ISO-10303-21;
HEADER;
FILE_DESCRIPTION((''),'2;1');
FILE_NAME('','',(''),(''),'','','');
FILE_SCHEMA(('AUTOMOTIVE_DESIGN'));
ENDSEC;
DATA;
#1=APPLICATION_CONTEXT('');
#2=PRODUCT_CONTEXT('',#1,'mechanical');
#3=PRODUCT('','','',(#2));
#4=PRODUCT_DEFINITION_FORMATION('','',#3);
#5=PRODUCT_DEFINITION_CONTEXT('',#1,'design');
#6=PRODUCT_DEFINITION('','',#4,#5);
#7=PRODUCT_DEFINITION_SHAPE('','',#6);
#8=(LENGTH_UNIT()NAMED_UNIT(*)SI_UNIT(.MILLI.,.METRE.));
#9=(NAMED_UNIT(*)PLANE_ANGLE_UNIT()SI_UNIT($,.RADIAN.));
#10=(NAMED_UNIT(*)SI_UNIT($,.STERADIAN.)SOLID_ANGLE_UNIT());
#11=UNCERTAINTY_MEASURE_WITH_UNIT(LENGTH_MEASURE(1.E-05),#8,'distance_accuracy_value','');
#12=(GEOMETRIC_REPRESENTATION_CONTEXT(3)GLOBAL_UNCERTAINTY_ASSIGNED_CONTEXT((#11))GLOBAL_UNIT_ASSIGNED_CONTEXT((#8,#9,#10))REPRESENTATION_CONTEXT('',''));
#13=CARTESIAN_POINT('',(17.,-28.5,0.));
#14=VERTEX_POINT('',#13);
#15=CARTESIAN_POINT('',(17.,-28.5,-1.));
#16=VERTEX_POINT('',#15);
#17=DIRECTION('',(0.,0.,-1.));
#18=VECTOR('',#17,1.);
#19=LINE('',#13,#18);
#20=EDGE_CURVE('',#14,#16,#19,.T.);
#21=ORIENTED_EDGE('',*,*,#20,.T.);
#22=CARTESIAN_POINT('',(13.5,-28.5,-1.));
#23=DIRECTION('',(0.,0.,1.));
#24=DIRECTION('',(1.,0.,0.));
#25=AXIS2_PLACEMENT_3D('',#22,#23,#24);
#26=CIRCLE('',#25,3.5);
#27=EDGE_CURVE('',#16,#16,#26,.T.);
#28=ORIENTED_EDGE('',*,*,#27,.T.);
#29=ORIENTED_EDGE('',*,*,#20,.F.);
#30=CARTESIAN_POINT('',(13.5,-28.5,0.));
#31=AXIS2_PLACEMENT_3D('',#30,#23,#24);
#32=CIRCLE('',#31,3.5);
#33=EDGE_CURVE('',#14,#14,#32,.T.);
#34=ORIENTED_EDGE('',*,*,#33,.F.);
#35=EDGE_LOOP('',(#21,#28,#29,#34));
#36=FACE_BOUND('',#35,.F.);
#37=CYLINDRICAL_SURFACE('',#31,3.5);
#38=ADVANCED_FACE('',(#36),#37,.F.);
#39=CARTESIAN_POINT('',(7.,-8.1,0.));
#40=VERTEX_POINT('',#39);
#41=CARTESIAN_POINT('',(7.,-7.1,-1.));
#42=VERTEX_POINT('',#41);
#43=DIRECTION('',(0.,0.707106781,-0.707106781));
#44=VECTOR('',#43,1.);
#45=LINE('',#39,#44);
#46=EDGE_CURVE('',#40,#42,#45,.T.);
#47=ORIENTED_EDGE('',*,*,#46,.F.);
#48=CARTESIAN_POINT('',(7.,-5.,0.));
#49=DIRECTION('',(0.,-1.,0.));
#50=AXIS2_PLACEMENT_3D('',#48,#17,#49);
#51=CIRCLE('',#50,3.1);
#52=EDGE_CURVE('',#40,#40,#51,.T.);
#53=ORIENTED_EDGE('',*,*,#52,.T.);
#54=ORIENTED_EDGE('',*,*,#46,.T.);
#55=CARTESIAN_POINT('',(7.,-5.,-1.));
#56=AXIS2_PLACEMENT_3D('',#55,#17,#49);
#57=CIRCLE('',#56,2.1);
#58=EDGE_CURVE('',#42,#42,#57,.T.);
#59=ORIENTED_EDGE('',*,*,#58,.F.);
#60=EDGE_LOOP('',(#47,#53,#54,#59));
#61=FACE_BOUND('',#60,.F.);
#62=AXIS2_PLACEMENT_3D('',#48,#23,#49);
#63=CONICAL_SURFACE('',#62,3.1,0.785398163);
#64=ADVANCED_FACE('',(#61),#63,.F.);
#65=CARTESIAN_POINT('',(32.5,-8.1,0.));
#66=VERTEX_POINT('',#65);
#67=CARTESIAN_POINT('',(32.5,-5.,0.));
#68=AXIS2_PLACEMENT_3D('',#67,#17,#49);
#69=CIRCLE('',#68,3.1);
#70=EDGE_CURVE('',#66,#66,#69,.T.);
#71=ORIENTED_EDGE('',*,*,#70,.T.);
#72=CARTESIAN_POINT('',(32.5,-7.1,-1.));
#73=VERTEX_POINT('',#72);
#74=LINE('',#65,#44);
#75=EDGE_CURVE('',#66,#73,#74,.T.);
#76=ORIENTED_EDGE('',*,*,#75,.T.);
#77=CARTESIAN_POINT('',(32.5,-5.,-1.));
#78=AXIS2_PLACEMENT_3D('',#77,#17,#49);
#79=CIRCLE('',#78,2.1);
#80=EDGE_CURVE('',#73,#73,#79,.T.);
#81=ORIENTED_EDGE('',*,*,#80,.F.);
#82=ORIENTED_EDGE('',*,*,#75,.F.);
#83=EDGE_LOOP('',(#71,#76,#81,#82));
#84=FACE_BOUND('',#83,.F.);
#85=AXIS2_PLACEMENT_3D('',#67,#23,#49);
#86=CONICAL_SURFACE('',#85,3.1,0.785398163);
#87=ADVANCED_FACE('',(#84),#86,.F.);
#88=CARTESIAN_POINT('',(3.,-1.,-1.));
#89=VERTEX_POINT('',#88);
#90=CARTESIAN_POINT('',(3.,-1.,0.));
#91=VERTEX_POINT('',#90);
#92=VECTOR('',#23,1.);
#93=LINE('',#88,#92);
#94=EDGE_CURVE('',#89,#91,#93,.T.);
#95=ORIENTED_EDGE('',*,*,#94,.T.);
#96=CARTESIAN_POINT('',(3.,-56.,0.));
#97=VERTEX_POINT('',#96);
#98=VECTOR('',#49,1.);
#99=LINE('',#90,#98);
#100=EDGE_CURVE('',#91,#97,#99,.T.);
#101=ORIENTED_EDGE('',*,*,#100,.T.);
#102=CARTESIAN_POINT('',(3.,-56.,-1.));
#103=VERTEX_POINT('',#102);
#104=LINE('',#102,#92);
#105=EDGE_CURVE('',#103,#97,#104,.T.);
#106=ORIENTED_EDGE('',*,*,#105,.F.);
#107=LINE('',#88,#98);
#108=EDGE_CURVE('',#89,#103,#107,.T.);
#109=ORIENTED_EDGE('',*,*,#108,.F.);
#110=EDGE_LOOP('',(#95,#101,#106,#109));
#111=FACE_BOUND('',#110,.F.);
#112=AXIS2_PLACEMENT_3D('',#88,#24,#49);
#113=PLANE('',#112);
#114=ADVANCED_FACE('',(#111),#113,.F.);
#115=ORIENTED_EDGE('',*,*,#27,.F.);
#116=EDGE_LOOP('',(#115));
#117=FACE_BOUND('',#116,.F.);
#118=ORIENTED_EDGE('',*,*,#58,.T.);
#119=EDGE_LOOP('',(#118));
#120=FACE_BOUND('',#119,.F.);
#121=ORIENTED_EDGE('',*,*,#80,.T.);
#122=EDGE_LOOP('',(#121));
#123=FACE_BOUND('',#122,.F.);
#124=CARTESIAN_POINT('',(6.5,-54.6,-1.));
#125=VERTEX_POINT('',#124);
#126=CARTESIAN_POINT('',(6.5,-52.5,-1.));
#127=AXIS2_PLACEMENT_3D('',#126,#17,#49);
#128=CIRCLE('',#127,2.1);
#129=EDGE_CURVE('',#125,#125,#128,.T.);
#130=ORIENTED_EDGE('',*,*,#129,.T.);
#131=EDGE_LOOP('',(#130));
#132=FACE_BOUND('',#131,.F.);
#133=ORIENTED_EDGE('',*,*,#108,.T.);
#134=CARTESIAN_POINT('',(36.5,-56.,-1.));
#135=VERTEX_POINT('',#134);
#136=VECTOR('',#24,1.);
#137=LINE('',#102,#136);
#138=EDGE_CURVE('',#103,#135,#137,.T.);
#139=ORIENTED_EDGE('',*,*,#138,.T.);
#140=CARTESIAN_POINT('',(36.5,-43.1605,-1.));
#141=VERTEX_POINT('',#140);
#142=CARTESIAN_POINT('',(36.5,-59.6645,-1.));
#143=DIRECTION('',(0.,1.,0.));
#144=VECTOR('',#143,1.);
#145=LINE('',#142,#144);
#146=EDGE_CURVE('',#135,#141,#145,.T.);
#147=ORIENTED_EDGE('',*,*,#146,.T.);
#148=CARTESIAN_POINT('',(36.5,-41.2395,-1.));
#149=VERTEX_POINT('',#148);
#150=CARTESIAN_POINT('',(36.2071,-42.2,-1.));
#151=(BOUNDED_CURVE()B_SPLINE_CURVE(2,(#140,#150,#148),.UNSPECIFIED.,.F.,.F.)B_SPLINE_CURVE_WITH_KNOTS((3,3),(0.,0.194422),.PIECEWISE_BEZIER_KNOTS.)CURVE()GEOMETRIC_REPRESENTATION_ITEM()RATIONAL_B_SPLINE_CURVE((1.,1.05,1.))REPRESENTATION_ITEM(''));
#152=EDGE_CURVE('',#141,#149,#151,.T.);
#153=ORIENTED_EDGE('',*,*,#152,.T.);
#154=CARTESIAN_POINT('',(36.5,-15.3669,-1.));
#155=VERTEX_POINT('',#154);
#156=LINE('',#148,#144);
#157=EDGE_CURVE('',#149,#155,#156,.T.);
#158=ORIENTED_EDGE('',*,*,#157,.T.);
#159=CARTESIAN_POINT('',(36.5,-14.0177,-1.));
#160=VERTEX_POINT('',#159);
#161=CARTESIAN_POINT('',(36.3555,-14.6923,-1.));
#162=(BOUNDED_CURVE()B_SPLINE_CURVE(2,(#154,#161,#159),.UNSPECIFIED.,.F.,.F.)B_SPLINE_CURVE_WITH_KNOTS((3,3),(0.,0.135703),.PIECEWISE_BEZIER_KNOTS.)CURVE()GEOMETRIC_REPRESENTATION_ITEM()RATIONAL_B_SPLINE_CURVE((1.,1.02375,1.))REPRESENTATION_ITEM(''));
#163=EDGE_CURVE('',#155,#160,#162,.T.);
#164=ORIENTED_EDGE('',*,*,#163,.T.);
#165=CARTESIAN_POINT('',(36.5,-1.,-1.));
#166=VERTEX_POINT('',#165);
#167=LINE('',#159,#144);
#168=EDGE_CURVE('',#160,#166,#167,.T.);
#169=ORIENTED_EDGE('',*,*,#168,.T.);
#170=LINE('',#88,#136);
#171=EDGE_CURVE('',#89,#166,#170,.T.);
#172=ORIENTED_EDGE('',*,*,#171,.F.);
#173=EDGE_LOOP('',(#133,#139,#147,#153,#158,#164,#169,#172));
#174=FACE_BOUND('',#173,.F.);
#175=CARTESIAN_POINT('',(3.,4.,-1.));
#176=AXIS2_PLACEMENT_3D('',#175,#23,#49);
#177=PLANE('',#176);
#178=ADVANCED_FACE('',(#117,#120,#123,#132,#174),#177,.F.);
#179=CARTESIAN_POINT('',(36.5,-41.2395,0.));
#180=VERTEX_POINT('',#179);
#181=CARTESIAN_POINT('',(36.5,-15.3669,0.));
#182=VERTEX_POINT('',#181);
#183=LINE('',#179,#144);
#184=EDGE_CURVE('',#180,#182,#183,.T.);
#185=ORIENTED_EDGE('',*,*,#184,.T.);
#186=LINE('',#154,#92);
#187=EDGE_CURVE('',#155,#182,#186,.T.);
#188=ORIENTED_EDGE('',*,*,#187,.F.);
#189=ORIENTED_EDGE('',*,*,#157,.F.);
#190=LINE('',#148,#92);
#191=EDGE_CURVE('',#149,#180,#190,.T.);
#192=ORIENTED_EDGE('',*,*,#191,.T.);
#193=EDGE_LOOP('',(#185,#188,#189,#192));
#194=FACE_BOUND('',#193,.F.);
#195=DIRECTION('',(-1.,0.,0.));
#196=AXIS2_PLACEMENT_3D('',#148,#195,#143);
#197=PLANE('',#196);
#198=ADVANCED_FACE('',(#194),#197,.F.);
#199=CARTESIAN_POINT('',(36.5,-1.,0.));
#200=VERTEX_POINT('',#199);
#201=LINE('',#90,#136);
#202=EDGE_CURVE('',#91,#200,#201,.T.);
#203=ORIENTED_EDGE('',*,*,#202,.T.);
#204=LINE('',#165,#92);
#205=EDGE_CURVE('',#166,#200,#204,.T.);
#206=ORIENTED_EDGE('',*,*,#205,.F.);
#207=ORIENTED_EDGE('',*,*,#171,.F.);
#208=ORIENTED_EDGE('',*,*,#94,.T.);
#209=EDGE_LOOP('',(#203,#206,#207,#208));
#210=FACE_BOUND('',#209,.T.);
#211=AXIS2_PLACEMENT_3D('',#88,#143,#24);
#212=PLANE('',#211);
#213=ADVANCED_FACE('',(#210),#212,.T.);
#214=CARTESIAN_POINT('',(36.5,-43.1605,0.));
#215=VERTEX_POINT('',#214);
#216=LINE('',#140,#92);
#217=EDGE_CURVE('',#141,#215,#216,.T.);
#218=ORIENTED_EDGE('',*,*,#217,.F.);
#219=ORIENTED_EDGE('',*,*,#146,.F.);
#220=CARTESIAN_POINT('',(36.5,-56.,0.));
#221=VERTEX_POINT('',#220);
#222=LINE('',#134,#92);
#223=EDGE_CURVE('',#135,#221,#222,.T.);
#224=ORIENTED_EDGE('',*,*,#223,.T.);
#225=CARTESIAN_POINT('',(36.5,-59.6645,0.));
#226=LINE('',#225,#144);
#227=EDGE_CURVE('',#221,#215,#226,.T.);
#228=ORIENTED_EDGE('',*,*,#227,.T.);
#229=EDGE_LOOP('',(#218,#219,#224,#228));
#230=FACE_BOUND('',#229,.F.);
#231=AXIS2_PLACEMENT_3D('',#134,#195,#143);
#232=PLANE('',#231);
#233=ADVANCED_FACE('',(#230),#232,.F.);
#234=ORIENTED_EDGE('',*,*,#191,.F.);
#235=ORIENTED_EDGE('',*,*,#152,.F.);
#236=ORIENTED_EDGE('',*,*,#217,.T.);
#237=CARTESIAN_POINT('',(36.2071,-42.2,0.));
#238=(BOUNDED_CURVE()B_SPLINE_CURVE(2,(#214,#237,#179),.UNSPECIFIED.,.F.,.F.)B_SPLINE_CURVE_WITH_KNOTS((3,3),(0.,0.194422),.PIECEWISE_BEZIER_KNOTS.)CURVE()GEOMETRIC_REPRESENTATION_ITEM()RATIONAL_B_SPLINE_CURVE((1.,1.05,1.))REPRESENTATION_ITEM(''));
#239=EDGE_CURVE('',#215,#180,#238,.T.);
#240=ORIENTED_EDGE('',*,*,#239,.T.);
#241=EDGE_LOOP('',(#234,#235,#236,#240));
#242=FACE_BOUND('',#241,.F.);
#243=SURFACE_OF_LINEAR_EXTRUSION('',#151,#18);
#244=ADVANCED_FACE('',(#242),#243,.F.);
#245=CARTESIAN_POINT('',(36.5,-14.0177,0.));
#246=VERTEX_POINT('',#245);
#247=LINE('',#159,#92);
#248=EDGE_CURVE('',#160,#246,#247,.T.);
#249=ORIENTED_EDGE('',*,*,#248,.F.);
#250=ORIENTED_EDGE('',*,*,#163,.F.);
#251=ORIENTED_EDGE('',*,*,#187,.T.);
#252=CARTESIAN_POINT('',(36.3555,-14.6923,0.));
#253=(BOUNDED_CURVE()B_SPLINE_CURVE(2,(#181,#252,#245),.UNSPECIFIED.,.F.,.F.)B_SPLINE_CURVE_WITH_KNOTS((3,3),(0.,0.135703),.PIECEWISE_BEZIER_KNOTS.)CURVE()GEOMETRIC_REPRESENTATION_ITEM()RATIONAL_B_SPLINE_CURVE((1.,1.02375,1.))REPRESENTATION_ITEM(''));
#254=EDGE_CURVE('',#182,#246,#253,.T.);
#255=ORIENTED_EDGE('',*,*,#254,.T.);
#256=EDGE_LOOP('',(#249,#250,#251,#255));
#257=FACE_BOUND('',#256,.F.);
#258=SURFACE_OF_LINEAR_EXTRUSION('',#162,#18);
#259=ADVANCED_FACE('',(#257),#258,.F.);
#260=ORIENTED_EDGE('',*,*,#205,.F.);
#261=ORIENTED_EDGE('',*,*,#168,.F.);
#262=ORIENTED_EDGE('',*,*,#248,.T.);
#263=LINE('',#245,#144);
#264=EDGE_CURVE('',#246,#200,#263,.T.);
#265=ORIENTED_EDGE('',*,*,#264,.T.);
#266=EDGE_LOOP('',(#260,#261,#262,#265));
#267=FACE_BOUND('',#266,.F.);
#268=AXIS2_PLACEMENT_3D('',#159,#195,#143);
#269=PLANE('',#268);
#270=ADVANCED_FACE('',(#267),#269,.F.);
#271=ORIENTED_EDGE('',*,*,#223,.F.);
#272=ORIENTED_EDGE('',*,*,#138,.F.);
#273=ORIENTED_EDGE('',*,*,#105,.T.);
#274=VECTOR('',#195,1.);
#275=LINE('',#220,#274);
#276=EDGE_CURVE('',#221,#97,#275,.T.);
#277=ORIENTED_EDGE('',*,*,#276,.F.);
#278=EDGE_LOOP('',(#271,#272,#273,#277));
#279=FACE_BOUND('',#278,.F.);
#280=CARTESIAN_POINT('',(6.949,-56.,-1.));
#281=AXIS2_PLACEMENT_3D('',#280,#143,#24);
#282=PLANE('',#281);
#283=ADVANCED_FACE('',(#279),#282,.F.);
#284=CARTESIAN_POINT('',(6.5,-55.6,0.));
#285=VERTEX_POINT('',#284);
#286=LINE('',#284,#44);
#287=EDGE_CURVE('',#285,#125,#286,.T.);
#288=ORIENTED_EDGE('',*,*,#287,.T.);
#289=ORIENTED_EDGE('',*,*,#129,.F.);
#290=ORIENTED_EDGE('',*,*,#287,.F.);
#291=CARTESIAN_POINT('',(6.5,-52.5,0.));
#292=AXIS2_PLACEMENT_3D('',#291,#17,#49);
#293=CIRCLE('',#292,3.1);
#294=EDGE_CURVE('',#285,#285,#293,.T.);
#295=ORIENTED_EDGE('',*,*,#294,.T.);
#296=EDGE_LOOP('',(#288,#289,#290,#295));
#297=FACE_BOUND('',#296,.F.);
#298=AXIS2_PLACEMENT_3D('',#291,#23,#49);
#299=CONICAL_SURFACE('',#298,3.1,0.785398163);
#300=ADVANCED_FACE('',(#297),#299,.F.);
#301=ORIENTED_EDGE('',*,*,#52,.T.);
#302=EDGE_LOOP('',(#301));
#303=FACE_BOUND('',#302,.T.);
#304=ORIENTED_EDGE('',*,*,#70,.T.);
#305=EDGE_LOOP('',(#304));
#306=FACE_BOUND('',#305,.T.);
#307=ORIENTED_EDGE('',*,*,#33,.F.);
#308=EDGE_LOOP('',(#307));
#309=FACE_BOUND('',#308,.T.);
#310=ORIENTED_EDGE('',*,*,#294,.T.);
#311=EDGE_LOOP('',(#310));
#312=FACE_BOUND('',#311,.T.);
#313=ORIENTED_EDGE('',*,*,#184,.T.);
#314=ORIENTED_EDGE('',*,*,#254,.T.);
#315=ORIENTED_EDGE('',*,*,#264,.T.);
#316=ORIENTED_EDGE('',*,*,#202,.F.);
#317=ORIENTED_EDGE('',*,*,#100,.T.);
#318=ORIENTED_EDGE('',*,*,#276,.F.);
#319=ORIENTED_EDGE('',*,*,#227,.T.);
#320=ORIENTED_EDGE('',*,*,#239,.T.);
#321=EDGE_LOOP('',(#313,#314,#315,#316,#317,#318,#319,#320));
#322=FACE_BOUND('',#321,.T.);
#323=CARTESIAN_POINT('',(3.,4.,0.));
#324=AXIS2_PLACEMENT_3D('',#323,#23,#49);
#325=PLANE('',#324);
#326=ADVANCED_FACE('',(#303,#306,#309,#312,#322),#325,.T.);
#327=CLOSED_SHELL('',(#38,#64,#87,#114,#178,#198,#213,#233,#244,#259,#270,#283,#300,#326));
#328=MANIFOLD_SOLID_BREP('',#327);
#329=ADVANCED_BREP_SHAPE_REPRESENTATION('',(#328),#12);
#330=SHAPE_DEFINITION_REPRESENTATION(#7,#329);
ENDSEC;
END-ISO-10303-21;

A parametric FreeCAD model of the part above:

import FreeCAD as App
import Part
import Sketcher
from FreeCAD import Vector
Q = App.Units.Quantity

doc = App.newDocument("Part")
body = doc.addObject("PartDesign::Body", "Body")

sketch1 = body.newObject("Sketcher::SketchObject", "Sketch")
sketch1.AttachmentSupport = (doc.getObject("XY_Plane"), [""])
sketch1.MapMode = "FlatFace"
sketch1.AttachmentOffset = App.Placement(Vector(0, 0, -1), App.Rotation())
sketch1.addGeometry([
    Part.LineSegment(Vector(36.5, -56, 0), Vector(36.5, -43.1605, 0)),
    Part.BSplineCurve([Vector(36.5, -43.1605, 0), Vector(36.2071, -42.2, 0), Vector(36.5, -41.2395, 0)], [3, 3], [0, 0.194422], False, 2, [1, 1.05, 1], False),
    Part.LineSegment(Vector(36.5, -41.2395, 0), Vector(36.5, -15.3669, 0)),
    Part.BSplineCurve([Vector(36.5, -15.3669, 0), Vector(36.3555, -14.6923, 0), Vector(36.5, -14.0177, 0)], [3, 3], [0, 0.135703], False, 2, [1, 1.02375, 1], False),
    Part.LineSegment(Vector(36.5, -14.0177, 0), Vector(36.5, -1, 0)),
    Part.LineSegment(Vector(36.5, -1, 0), Vector(3, -1, 0)),
    Part.LineSegment(Vector(3, -1, 0), Vector(3, -56, 0)),
    Part.LineSegment(Vector(3, -56, 0), Vector(36.5, -56, 0)),
], False)
sketch1.addConstraint([
    Sketcher.Constraint("Block", 1),
    Sketcher.Constraint("Block", 3),
    Sketcher.Constraint("Coincident", 0, 2, 1, 1),
    Sketcher.Constraint("Coincident", 1, 2, 2, 1),
    Sketcher.Constraint("Coincident", 2, 2, 3, 1),
    Sketcher.Constraint("Coincident", 3, 2, 4, 1),
    Sketcher.Constraint("Coincident", 4, 2, 5, 1),
    Sketcher.Constraint("Coincident", 5, 2, 6, 1),
    Sketcher.Constraint("Coincident", 6, 2, 7, 1),
    Sketcher.Constraint("Coincident", 7, 2, 0, 1),
    Sketcher.Constraint("Vertical", 0),
    Sketcher.Constraint("Vertical", 4),
    Sketcher.Constraint("Horizontal", 5),
    Sketcher.Constraint("Vertical", 6),
    Sketcher.Constraint("Horizontal", 7),
    Sketcher.Constraint("DistanceY", 6, 2, 6, 1, Q("55 mm")),
    Sketcher.Constraint("DistanceX", 5, 2, 5, 1, Q("33.5 mm")),
    Sketcher.Constraint("DistanceY", 4, 2, -1, 1, Q("1 mm")),
])
pad1 = body.newObject("PartDesign::Pad", "Pad")
pad1.Profile = sketch1
pad1.Length = 1

sketch2 = body.newObject("Sketcher::SketchObject", "Sketch001")
sketch2.AttachmentSupport = (doc.getObject("XY_Plane"), [""])
sketch2.MapMode = "FlatFace"
sketch2.addGeometry(Part.Circle(Vector(13.5, -28.5, 0), Vector(0, 0, 1), 3.5), False)
sketch2.addConstraint([
    Sketcher.Constraint("Diameter", 0, Q("7 mm")),
    Sketcher.Constraint("DistanceX", -1, 1, 0, 3, Q("13.5 mm")),
    Sketcher.Constraint("DistanceY", 0, 3, -1, 1, Q("28.5 mm")),
])
pocket1 = body.newObject("PartDesign::Pocket", "Pocket")
pocket1.Profile = sketch2
pocket1.Type = "UpToFirst"

sketch3 = body.newObject("Sketcher::SketchObject", "Sketch002")
sketch3.AttachmentSupport = (doc.getObject("XY_Plane"), [""])
sketch3.MapMode = "FlatFace"
sketch3.addGeometry([
    Part.Circle(Vector(6.5, -52.5, 0), Vector(0, 0, 1), 1.8),
    Part.Circle(Vector(7, -5, 0), Vector(0, 0, 1), 1.8),
    Part.Circle(Vector(32.5, -5, 0), Vector(0, 0, 1), 1.8),
], False)
sketch3.addConstraint([
    Sketcher.Constraint("Equal", 0, 1),
    Sketcher.Constraint("Equal", 1, 2),
    Sketcher.Constraint("Horizontal", 1, 3, 2, 3),
    Sketcher.Constraint("Diameter", 0, Q("3.6 mm")),
    Sketcher.Constraint("DistanceX", -1, 1, 1, 3, Q("7 mm")),
    Sketcher.Constraint("DistanceY", 1, 3, -1, 1, Q("5 mm")),
    Sketcher.Constraint("DistanceX", 0, 3, 2, 3, Q("26 mm")),
    Sketcher.Constraint("DistanceX", -1, 1, 0, 3, Q("6.5 mm")),
    Sketcher.Constraint("DistanceY", 0, 3, -1, 1, Q("52.5 mm")),
])
doc.recompute()
hole = body.newObject("PartDesign::Hole", "Hole")
hole.Profile = sketch3
hole.ThreadType = "None"
hole.Diameter = 3.6
hole.DepthType = "ThroughAll"
hole.HoleCutType = "Countersink"
hole.HoleCutDiameter = 6.2
hole.HoleCutCountersinkAngle = 90

doc.recompute()
